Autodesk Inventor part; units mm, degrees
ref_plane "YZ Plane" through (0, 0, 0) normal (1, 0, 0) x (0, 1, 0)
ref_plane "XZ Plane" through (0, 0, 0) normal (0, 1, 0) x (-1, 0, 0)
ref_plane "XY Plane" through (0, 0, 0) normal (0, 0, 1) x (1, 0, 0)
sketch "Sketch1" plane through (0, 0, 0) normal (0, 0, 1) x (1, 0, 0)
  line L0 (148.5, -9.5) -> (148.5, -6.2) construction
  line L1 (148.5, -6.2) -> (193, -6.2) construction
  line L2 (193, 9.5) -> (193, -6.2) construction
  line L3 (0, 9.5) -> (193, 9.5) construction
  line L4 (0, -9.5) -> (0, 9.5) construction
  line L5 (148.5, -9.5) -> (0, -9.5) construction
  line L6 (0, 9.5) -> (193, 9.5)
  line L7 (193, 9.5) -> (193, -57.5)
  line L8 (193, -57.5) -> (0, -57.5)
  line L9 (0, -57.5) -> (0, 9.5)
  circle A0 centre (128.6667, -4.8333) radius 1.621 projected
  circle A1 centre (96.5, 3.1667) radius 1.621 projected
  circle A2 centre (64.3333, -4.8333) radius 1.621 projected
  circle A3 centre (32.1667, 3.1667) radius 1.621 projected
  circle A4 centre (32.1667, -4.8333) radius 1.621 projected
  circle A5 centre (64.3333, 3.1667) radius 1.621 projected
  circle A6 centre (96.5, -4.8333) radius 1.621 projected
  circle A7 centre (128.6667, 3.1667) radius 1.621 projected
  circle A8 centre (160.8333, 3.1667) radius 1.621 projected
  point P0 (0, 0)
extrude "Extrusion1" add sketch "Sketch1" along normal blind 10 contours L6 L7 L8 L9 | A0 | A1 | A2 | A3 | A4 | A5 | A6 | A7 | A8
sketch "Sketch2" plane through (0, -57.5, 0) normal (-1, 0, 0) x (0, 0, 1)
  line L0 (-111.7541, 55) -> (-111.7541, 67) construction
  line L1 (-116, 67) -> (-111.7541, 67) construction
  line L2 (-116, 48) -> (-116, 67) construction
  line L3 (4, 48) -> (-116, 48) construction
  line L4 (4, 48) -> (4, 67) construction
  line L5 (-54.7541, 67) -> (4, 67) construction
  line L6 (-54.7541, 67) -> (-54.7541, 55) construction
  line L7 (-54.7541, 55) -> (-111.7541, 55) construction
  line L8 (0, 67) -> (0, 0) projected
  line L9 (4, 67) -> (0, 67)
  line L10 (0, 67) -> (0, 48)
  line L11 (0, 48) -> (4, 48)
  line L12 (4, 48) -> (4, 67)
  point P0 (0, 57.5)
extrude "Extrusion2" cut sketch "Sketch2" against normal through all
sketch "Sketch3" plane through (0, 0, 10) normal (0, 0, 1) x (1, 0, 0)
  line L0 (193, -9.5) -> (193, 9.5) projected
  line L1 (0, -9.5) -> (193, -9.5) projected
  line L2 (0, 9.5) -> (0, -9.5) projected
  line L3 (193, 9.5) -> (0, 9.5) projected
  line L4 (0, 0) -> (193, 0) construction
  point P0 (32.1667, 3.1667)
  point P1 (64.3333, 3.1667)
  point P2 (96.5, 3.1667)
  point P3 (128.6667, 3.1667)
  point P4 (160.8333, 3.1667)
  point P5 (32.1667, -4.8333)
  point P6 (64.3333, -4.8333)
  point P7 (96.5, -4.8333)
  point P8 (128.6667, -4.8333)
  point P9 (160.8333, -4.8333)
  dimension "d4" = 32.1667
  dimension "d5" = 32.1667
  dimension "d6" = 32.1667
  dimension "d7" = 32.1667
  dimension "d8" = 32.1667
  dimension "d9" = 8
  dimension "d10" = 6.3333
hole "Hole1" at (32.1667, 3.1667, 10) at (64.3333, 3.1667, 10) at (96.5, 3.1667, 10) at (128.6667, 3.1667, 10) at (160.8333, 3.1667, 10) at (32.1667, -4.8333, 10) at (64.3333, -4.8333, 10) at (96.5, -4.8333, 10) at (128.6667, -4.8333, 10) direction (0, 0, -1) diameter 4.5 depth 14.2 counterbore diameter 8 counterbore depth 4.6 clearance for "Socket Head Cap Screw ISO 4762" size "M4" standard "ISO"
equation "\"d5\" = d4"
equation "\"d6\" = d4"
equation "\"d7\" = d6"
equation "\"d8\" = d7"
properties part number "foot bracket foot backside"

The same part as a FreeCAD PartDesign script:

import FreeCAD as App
import Part
import Sketcher
from FreeCAD import Vector

doc = App.newDocument("Part")
body = doc.addObject("PartDesign::Body", "Body")

sketch1 = body.newObject("Sketcher::SketchObject", "Sketch")
sketch1.AttachmentSupport = (doc.getObject("XY_Plane"), [""])
sketch1.MapMode = "FlatFace"
sketch1.addGeometry([
    Part.LineSegment(Vector(193, 10, 0), Vector(0, 10, 0)),
    Part.LineSegment(Vector(0, 10, 0), Vector(0, -58, 0)),
    Part.LineSegment(Vector(0, -58, 0), Vector(193, -58, 0)),
    Part.LineSegment(Vector(193, -58, 0), Vector(193, 10, 0)),
], False)
sketch1.addConstraint([
    Sketcher.Constraint("Coincident", 0, 2, 1, 1),
    Sketcher.Constraint("Coincident", 1, 2, 2, 1),
    Sketcher.Constraint("Coincident", 2, 2, 3, 1),
    Sketcher.Constraint("Coincident", 3, 2, 0, 1),
    Sketcher.Constraint("Horizontal", 0),
    Sketcher.Constraint("Vertical", 1),
    Sketcher.Constraint("Horizontal", 2),
    Sketcher.Constraint("Vertical", 3),
    Sketcher.Constraint("PointOnObject", 0, 2, -2),
    Sketcher.Constraint("DistanceX", 0, 2, 0, 1, 193.0),
    Sketcher.Constraint("DistanceY", 1, 2, 1, 1, 67.0),
    Sketcher.Constraint("DistanceY", -1, 1, 0, 2, 9.5),
])
pad1 = body.newObject("PartDesign::Pad", "Pad")
pad1.Profile = sketch1
pad1.Length = 10

sketch2 = body.newObject("Sketcher::SketchObject", "Sketch001")
sketch2.AttachmentSupport = (doc.getObject("YZ_Plane"), [""])
sketch2.MapMode = "FlatFace"
sketch2.addGeometry([
    Part.LineSegment(Vector(9.5, 4, 0), Vector(9.5, 0, 0)),
    Part.LineSegment(Vector(9.5, 0, 0), Vector(-9.5, 0, 0)),
    Part.LineSegment(Vector(-9.5, 0, 0), Vector(-9.5, 4, 0)),
    Part.LineSegment(Vector(-9.5, 4, 0), Vector(9.5, 4, 0)),
], False)
sketch2.addConstraint([
    Sketcher.Constraint("Coincident", 0, 2, 1, 1),
    Sketcher.Constraint("Coincident", 1, 2, 2, 1),
    Sketcher.Constraint("Coincident", 2, 2, 3, 1),
    Sketcher.Constraint("Coincident", 3, 2, 0, 1),
    Sketcher.Constraint("Vertical", 0),
    Sketcher.Constraint("Horizontal", 1),
    Sketcher.Constraint("Vertical", 2),
    Sketcher.Constraint("Horizontal", 3),
    Sketcher.Constraint("Symmetric", 0, 2, 1, 2, -1, 1),
    Sketcher.Constraint("DistanceX", 1, 2, 1, 1, 19.0),
    Sketcher.Constraint("DistanceY", 0, 2, 0, 1, 4.0),
])
pocket1 = body.newObject("PartDesign::Pocket", "Pocket")
pocket1.Profile = sketch2
pocket1.Type = "ThroughAll"
pocket1.Reversed = True

sketch3 = body.newObject("Sketcher::SketchObject", "Sketch002")
sketch3.AttachmentSupport = (doc.getObject("XY_Plane"), [""])
sketch3.MapMode = "FlatFace"
sketch3.AttachmentOffset = App.Placement(Vector(0, 0, 10), App.Rotation())
sketch3.addGeometry([
    Part.Circle(Vector(32.2, 3.2, 0), Vector(0, 0, 1), 2.2),
    Part.Circle(Vector(64.3, 3.2, 0), Vector(0, 0, 1), 2.2),
    Part.Circle(Vector(96.5, 3.2, 0), Vector(0, 0, 1), 2.2),
    Part.Circle(Vector(128.7, 3.2, 0), Vector(0, 0, 1), 2.2),
    Part.Circle(Vector(160.8, 3.2, 0), Vector(0, 0, 1), 2.2),
    Part.Circle(Vector(32.2, -4.8, 0), Vector(0, 0, 1), 2.2),
    Part.Circle(Vector(64.3, -4.8, 0), Vector(0, 0, 1), 2.2),
    Part.Circle(Vector(96.5, -4.8, 0), Vector(0, 0, 1), 2.2),
    Part.Circle(Vector(128.7, -4.8, 0), Vector(0, 0, 1), 2.2),
], False)
sketch3.addConstraint([
    Sketcher.Constraint("Equal", 0, 1),
    Sketcher.Constraint("Equal", 1, 2),
    Sketcher.Constraint("Equal", 2, 3),
    Sketcher.Constraint("Equal", 3, 4),
    Sketcher.Constraint("Equal", 4, 5),
    Sketcher.Constraint("Equal", 5, 6),
    Sketcher.Constraint("Equal", 6, 7),
    Sketcher.Constraint("Equal", 7, 8),
    Sketcher.Constraint("Horizontal", 0, 3, 1, 3),
    Sketcher.Constraint("Horizontal", 1, 3, 2, 3),
    Sketcher.Constraint("Horizontal", 2, 3, 3, 3),
    Sketcher.Constraint("Horizontal", 3, 3, 4, 3),
    Sketcher.Constraint("Horizontal", 5, 3, 6, 3),
    Sketcher.Constraint("Horizontal", 6, 3, 7, 3),
    Sketcher.Constraint("Horizontal", 7, 3, 8, 3),
    Sketcher.Constraint("Vertical", 0, 3, 5, 3),
    Sketcher.Constraint("Vertical", 1, 3, 6, 3),
    Sketcher.Constraint("Vertical", 2, 3, 7, 3),
    Sketcher.Constraint("Vertical", 3, 3, 8, 3),
    Sketcher.Constraint("Diameter", 0, 4.5),
    Sketcher.Constraint("DistanceY", 5, 3, 0, 3, 8.0),
    Sketcher.Constraint("DistanceX", -1, 1, 2, 3, 96.5),
    Sketcher.Constraint("DistanceX", 0, 3, 3, 3, 96.5),
    Sketcher.Constraint("DistanceX", 1, 3, 4, 3, 96.5),
    Sketcher.Constraint("DistanceX", -1, 1, 0, 3, 32.1667),
    Sketcher.Constraint("DistanceY", -1, 1, 0, 3, 3.1667),
    Sketcher.Constraint("DistanceX", -1, 1, 1, 3, 64.3333),
])
doc.recompute()
hole = body.newObject("PartDesign::Hole", "Hole")
hole.Profile = sketch3
hole.ThreadType = "None"
hole.Diameter = 4.5
hole.DepthType = "Dimension"
hole.Depth = 14.2
hole.DrillPoint = "Flat"
hole.HoleCutType = "Counterbore"
hole.HoleCutDiameter = 8
hole.HoleCutDepth = 4.6

doc.recompute()
